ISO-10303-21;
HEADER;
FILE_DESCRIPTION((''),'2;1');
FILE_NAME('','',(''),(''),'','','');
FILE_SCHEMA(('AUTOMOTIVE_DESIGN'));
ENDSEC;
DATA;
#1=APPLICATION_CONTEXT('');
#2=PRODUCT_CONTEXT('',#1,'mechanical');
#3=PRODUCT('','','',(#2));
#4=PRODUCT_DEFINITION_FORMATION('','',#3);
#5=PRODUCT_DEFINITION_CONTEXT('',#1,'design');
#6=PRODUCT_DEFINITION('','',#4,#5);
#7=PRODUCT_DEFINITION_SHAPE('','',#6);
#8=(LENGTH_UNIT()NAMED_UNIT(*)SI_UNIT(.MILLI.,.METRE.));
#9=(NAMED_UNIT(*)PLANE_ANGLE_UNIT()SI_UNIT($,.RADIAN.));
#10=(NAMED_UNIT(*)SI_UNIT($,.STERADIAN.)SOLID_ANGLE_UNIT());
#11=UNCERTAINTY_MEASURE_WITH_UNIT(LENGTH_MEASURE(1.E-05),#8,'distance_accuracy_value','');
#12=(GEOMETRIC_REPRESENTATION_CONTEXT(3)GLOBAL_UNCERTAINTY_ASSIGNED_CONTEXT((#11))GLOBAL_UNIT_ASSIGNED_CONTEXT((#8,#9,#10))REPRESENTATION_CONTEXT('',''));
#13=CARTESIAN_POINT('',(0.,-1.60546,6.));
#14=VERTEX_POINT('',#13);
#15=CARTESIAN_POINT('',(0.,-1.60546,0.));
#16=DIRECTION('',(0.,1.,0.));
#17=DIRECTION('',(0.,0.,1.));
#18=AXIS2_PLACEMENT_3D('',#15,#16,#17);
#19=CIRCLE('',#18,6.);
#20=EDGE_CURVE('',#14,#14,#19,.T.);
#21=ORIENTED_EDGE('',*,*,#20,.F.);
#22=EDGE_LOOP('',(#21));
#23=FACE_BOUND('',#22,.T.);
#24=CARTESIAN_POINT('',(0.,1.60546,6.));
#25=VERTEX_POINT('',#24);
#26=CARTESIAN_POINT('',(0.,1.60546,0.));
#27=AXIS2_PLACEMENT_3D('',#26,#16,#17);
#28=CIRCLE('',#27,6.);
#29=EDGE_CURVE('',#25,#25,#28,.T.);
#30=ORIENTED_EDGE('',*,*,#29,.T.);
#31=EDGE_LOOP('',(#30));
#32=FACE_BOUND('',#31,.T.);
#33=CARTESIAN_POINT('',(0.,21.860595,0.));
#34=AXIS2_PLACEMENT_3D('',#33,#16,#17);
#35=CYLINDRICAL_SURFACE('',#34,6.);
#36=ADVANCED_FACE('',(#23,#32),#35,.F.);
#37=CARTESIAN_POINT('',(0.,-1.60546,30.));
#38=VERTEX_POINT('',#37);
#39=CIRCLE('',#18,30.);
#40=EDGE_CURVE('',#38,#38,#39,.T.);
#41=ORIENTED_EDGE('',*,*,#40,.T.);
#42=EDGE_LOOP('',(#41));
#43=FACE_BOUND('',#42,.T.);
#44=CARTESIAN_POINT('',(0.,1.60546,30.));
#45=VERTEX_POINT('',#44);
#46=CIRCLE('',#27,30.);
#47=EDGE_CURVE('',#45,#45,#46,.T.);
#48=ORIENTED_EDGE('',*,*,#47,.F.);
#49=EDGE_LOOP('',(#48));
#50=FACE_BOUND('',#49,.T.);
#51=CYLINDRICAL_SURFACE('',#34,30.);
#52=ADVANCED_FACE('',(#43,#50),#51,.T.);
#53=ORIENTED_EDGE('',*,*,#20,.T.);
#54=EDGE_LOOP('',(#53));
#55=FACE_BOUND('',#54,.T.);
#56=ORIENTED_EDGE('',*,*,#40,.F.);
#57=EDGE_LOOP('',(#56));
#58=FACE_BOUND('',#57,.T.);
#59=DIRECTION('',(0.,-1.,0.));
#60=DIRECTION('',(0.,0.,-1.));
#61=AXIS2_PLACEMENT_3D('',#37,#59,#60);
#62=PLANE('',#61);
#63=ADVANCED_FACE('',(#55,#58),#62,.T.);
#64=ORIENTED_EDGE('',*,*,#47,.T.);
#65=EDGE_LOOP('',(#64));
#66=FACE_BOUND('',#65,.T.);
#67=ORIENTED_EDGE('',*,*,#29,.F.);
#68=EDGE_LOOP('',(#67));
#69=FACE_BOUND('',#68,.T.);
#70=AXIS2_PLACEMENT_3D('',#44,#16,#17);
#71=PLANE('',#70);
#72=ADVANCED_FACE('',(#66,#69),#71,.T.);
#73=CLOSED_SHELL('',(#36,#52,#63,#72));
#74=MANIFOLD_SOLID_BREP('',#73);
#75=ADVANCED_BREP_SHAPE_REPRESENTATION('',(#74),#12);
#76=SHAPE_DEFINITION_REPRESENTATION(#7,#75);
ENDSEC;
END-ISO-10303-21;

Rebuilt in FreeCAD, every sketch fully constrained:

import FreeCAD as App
import Part
import Sketcher

V = App.Vector

doc = App.newDocument("Part")
body = doc.addObject("PartDesign::Body", "Body")

# Sketch on YZ plane
sketch1 = body.newObject("Sketcher::SketchObject", "Sketch")
sketch1.AttachmentSupport = (doc.getObject("YZ_Plane"), [""])
sketch1.MapMode = "FlatFace"
sketch1.addGeometry(Part.LineSegment(V(1.6, 30, 0), V(-1.6, 30, 0)), False)
sketch1.addGeometry(Part.LineSegment(V(-1.6, 30, 0), V(-1.6, 6, 0)), False)
sketch1.addGeometry(Part.LineSegment(V(-1.6, 6, 0), V(1.6, 6, 0)), False)
sketch1.addGeometry(Part.LineSegment(V(1.6, 6, 0), V(1.6, 30, 0)), False)
sketch1.addConstraint(Sketcher.Constraint("Coincident", 0, 2, 1, 1))
sketch1.addConstraint(Sketcher.Constraint("Coincident", 1, 2, 2, 1))
sketch1.addConstraint(Sketcher.Constraint("Coincident", 2, 2, 3, 1))
sketch1.addConstraint(Sketcher.Constraint("Coincident", 3, 2, 0, 1))
sketch1.addConstraint(Sketcher.Constraint("Horizontal", 0))
sketch1.addConstraint(Sketcher.Constraint("Vertical", 1))
sketch1.addConstraint(Sketcher.Constraint("Horizontal", 2))
sketch1.addConstraint(Sketcher.Constraint("Vertical", 3))
sketch1.addConstraint(Sketcher.Constraint("DistanceY", 1, 2, 1, 1, 24.0))
sketch1.addConstraint(Sketcher.Constraint("DistanceY", -1, 1, 0, 2, 30.0))
sketch1.addConstraint(Sketcher.Constraint("DistanceX", 0, 2, 0, 1, 3.21092))
sketch1.addConstraint(Sketcher.Constraint("DistanceX", 0, 2, -1, 1, 1.60546))
revolution = body.newObject("PartDesign::Revolution", "Revolution")
revolution.Profile = sketch1
revolution.ReferenceAxis = (sketch1, ["H_Axis"])
revolution.Angle = 360

doc.recompute()
